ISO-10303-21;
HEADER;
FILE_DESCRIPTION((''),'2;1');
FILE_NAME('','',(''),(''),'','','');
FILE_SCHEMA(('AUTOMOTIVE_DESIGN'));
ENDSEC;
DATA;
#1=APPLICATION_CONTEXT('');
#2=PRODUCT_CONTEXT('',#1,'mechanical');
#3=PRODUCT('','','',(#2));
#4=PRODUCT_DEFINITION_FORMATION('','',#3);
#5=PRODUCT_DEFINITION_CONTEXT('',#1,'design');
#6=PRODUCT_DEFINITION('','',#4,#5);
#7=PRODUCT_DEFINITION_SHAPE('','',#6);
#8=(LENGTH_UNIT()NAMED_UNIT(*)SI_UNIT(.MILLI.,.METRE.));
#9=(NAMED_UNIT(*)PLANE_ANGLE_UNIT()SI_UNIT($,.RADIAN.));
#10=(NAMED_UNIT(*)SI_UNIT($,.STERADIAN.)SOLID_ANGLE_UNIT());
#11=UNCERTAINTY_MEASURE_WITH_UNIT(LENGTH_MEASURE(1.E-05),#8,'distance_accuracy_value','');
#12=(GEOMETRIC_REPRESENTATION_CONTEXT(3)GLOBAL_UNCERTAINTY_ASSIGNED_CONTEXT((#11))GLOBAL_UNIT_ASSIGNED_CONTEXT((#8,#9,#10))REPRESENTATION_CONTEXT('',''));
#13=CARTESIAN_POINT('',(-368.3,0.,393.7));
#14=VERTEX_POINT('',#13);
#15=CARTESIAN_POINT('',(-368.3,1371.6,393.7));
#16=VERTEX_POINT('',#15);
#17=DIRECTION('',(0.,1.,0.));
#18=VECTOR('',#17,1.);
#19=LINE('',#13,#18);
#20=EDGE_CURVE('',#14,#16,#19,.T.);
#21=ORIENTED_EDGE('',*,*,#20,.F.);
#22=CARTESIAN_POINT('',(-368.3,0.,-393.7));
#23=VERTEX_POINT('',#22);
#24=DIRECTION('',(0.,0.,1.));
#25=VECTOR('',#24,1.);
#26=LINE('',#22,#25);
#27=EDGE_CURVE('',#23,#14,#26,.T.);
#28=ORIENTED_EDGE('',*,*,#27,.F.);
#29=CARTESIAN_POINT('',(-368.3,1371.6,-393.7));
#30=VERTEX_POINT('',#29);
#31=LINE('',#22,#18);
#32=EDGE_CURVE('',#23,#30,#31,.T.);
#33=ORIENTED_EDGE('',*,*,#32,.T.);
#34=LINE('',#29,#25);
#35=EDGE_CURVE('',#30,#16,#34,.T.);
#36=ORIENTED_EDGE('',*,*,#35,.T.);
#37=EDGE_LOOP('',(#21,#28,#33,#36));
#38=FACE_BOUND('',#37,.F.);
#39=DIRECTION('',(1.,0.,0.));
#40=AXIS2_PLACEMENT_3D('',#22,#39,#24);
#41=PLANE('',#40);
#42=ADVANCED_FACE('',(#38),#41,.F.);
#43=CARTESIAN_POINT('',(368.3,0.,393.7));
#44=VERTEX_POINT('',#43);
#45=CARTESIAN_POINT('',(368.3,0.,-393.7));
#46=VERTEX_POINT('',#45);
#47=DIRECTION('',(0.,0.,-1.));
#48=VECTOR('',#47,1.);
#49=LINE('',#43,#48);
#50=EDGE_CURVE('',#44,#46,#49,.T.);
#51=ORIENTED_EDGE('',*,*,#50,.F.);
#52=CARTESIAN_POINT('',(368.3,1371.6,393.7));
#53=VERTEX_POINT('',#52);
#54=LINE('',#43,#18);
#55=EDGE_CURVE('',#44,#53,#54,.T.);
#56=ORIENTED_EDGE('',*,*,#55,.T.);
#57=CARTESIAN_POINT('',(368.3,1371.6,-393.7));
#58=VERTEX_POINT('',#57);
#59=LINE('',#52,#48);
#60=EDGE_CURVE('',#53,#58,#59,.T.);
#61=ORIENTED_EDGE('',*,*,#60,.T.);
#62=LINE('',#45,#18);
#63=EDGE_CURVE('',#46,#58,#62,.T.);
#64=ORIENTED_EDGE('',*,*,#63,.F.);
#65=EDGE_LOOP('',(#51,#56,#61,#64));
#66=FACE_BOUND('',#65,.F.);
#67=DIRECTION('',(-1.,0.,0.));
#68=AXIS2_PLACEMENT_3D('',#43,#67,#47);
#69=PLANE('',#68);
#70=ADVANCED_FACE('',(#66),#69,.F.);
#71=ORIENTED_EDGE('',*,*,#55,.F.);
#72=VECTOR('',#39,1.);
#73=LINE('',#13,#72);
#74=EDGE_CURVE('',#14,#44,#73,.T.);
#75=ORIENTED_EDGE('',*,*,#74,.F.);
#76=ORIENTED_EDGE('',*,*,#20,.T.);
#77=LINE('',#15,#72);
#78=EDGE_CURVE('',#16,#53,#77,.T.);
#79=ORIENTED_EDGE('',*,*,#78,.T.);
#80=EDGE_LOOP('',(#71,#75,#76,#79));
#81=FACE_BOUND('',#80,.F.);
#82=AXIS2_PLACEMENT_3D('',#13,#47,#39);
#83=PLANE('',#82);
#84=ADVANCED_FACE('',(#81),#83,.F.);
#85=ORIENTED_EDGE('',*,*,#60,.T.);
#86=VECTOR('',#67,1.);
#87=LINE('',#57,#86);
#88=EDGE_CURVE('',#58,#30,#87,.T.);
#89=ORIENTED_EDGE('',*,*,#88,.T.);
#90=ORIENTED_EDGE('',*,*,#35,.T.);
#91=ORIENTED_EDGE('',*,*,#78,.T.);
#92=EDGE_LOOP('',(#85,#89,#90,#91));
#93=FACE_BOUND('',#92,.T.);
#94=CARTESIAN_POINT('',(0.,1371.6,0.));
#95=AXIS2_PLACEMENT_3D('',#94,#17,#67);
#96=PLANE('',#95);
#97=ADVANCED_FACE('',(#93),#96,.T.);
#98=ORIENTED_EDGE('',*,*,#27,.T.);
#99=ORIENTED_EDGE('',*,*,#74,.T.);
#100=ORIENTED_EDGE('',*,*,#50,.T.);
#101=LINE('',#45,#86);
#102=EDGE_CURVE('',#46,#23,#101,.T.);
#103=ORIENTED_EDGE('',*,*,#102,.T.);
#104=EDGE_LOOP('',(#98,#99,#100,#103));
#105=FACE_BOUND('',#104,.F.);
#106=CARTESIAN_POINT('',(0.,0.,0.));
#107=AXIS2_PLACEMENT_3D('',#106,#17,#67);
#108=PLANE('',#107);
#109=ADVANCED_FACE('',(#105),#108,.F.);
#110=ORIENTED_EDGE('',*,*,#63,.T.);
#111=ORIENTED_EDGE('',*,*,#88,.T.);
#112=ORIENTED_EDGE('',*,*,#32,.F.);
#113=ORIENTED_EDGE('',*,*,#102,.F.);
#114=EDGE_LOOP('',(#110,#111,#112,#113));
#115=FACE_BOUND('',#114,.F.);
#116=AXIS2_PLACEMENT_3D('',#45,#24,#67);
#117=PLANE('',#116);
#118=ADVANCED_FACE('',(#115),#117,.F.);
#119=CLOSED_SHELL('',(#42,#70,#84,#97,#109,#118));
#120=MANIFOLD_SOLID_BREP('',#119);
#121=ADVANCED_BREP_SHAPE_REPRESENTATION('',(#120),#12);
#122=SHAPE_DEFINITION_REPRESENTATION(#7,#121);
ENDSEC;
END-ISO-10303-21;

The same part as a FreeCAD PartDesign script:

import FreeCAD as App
import Part
import Sketcher
Q = App.Units.Quantity


def add_polygon(sketch, points):
    """Adds a closed chain of lines whose ends are joined by coincident constraints."""
    first, n = sketch.GeometryCount, len(points)
    for a, b in zip(points, points[1:] + points[:1]):
        sketch.addGeometry(Part.LineSegment(App.Vector(*a, 0), App.Vector(*b, 0)), False)
    for i in range(n):
        sketch.addConstraint(Sketcher.Constraint("Coincident", first + i, 2, first + (i + 1) % n, 1))

doc = App.newDocument("Part")
body = doc.addObject("PartDesign::Body", "Body")

# Sketch on XZ plane
sketch1 = body.newObject("Sketcher::SketchObject", "Sketch")
sketch1.AttachmentSupport = (doc.getObject("XZ_Plane"), [""])
sketch1.MapMode = "FlatFace"
add_polygon(sketch1, [(-368, -394), (-368, 394), (368, 394), (368, -394)])  # lines 0-3
sketch1.addConstraint([
    Sketcher.Constraint("Vertical", 0),
    Sketcher.Constraint("Horizontal", 1),
    Sketcher.Constraint("Vertical", 2),
    Sketcher.Constraint("Horizontal", 3),
    Sketcher.Constraint("Symmetric", 0, 2, 2, 2, -1, 1),
    Sketcher.Constraint("DistanceX", 1, 1, 1, 2, Q("29 in")),
    Sketcher.Constraint("DistanceY", 0, 1, 0, 2, Q("31 in")),
])
pad1 = body.newObject("PartDesign::Pad", "Pad")
pad1.Profile = sketch1
pad1.Length = Q("54 in")
pad1.Reversed = True

doc.recompute()
